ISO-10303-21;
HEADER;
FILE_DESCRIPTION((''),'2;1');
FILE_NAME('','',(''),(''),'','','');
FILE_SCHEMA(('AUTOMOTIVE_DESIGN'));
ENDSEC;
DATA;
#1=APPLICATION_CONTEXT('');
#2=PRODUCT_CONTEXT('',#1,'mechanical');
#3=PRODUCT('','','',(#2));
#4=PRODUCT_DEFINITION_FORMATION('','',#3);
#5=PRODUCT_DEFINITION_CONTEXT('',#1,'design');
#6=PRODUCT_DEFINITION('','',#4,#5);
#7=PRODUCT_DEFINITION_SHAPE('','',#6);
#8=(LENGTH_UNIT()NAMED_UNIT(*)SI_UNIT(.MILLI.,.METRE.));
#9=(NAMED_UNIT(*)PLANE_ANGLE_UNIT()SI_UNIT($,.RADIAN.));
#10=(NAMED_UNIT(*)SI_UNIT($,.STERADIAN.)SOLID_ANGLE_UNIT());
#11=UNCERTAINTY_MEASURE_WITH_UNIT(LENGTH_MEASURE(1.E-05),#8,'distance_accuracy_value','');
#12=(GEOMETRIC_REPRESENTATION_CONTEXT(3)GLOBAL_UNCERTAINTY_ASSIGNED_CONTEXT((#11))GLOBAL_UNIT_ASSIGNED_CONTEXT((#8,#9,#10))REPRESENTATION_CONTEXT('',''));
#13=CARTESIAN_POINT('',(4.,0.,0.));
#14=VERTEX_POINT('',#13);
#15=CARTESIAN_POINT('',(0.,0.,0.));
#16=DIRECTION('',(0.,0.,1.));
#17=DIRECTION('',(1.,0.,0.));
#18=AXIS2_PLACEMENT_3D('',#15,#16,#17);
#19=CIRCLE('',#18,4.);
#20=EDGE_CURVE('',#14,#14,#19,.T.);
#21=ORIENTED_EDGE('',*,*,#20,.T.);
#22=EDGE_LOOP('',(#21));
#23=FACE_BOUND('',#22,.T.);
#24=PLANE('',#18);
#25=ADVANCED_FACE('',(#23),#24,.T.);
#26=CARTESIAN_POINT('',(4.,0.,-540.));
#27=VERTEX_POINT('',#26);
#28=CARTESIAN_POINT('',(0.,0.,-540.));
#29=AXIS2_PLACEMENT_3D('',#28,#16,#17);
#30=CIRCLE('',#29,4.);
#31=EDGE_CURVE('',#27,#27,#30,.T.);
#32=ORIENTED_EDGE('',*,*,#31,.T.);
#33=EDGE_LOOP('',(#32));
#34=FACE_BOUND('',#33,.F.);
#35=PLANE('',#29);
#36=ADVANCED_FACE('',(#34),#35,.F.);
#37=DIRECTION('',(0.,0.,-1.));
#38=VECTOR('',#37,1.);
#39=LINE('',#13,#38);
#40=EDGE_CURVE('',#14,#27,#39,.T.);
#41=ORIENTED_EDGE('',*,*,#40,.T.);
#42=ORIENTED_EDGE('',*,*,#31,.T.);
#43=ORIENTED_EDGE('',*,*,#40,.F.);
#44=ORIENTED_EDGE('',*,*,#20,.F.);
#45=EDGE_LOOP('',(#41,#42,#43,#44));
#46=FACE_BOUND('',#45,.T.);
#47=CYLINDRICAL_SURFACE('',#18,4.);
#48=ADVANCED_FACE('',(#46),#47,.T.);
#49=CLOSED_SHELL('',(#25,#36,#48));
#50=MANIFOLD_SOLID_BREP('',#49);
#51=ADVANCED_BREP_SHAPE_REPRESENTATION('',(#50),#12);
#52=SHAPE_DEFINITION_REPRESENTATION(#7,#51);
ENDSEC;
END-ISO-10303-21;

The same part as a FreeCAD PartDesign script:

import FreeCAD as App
import Part
import Sketcher

doc = App.newDocument("Part")
params = doc.addObject("Spreadsheet::Sheet", "Params")
for row, (alias, value) in enumerate([
    ("sketch1_diameter", "8 mm"),
    ("pad1_length", "540 mm"),
], start=1):
    params.set(f"A{row}", alias)
    params.set(f"B{row}", "=" + value)
    params.setAlias(f"B{row}", alias)

body = doc.addObject("PartDesign::Body", "Body")

# Sketch on XY plane
sketch1 = body.newObject("Sketcher::SketchObject", "Sketch")
sketch1.AttachmentSupport = (doc.getObject("XY_Plane"), [""])
sketch1.MapMode = "FlatFace"
sketch1.addGeometry(Part.Circle(App.Vector(0, 0, 0), App.Vector(0, 0, 1), 4), False)
sketch1.addConstraint(Sketcher.Constraint("Coincident", 0, 3, -1, 1))
sketch1.addConstraint(Sketcher.Constraint("Diameter", 0, 8.0))
sketch1.setExpression("Constraints[1]", "Params.sketch1_diameter")
pad1 = body.newObject("PartDesign::Pad", "Pad")
pad1.Profile = sketch1
pad1.setExpression("Length", "Params.pad1_length")
pad1.Reversed = True

doc.recompute()
